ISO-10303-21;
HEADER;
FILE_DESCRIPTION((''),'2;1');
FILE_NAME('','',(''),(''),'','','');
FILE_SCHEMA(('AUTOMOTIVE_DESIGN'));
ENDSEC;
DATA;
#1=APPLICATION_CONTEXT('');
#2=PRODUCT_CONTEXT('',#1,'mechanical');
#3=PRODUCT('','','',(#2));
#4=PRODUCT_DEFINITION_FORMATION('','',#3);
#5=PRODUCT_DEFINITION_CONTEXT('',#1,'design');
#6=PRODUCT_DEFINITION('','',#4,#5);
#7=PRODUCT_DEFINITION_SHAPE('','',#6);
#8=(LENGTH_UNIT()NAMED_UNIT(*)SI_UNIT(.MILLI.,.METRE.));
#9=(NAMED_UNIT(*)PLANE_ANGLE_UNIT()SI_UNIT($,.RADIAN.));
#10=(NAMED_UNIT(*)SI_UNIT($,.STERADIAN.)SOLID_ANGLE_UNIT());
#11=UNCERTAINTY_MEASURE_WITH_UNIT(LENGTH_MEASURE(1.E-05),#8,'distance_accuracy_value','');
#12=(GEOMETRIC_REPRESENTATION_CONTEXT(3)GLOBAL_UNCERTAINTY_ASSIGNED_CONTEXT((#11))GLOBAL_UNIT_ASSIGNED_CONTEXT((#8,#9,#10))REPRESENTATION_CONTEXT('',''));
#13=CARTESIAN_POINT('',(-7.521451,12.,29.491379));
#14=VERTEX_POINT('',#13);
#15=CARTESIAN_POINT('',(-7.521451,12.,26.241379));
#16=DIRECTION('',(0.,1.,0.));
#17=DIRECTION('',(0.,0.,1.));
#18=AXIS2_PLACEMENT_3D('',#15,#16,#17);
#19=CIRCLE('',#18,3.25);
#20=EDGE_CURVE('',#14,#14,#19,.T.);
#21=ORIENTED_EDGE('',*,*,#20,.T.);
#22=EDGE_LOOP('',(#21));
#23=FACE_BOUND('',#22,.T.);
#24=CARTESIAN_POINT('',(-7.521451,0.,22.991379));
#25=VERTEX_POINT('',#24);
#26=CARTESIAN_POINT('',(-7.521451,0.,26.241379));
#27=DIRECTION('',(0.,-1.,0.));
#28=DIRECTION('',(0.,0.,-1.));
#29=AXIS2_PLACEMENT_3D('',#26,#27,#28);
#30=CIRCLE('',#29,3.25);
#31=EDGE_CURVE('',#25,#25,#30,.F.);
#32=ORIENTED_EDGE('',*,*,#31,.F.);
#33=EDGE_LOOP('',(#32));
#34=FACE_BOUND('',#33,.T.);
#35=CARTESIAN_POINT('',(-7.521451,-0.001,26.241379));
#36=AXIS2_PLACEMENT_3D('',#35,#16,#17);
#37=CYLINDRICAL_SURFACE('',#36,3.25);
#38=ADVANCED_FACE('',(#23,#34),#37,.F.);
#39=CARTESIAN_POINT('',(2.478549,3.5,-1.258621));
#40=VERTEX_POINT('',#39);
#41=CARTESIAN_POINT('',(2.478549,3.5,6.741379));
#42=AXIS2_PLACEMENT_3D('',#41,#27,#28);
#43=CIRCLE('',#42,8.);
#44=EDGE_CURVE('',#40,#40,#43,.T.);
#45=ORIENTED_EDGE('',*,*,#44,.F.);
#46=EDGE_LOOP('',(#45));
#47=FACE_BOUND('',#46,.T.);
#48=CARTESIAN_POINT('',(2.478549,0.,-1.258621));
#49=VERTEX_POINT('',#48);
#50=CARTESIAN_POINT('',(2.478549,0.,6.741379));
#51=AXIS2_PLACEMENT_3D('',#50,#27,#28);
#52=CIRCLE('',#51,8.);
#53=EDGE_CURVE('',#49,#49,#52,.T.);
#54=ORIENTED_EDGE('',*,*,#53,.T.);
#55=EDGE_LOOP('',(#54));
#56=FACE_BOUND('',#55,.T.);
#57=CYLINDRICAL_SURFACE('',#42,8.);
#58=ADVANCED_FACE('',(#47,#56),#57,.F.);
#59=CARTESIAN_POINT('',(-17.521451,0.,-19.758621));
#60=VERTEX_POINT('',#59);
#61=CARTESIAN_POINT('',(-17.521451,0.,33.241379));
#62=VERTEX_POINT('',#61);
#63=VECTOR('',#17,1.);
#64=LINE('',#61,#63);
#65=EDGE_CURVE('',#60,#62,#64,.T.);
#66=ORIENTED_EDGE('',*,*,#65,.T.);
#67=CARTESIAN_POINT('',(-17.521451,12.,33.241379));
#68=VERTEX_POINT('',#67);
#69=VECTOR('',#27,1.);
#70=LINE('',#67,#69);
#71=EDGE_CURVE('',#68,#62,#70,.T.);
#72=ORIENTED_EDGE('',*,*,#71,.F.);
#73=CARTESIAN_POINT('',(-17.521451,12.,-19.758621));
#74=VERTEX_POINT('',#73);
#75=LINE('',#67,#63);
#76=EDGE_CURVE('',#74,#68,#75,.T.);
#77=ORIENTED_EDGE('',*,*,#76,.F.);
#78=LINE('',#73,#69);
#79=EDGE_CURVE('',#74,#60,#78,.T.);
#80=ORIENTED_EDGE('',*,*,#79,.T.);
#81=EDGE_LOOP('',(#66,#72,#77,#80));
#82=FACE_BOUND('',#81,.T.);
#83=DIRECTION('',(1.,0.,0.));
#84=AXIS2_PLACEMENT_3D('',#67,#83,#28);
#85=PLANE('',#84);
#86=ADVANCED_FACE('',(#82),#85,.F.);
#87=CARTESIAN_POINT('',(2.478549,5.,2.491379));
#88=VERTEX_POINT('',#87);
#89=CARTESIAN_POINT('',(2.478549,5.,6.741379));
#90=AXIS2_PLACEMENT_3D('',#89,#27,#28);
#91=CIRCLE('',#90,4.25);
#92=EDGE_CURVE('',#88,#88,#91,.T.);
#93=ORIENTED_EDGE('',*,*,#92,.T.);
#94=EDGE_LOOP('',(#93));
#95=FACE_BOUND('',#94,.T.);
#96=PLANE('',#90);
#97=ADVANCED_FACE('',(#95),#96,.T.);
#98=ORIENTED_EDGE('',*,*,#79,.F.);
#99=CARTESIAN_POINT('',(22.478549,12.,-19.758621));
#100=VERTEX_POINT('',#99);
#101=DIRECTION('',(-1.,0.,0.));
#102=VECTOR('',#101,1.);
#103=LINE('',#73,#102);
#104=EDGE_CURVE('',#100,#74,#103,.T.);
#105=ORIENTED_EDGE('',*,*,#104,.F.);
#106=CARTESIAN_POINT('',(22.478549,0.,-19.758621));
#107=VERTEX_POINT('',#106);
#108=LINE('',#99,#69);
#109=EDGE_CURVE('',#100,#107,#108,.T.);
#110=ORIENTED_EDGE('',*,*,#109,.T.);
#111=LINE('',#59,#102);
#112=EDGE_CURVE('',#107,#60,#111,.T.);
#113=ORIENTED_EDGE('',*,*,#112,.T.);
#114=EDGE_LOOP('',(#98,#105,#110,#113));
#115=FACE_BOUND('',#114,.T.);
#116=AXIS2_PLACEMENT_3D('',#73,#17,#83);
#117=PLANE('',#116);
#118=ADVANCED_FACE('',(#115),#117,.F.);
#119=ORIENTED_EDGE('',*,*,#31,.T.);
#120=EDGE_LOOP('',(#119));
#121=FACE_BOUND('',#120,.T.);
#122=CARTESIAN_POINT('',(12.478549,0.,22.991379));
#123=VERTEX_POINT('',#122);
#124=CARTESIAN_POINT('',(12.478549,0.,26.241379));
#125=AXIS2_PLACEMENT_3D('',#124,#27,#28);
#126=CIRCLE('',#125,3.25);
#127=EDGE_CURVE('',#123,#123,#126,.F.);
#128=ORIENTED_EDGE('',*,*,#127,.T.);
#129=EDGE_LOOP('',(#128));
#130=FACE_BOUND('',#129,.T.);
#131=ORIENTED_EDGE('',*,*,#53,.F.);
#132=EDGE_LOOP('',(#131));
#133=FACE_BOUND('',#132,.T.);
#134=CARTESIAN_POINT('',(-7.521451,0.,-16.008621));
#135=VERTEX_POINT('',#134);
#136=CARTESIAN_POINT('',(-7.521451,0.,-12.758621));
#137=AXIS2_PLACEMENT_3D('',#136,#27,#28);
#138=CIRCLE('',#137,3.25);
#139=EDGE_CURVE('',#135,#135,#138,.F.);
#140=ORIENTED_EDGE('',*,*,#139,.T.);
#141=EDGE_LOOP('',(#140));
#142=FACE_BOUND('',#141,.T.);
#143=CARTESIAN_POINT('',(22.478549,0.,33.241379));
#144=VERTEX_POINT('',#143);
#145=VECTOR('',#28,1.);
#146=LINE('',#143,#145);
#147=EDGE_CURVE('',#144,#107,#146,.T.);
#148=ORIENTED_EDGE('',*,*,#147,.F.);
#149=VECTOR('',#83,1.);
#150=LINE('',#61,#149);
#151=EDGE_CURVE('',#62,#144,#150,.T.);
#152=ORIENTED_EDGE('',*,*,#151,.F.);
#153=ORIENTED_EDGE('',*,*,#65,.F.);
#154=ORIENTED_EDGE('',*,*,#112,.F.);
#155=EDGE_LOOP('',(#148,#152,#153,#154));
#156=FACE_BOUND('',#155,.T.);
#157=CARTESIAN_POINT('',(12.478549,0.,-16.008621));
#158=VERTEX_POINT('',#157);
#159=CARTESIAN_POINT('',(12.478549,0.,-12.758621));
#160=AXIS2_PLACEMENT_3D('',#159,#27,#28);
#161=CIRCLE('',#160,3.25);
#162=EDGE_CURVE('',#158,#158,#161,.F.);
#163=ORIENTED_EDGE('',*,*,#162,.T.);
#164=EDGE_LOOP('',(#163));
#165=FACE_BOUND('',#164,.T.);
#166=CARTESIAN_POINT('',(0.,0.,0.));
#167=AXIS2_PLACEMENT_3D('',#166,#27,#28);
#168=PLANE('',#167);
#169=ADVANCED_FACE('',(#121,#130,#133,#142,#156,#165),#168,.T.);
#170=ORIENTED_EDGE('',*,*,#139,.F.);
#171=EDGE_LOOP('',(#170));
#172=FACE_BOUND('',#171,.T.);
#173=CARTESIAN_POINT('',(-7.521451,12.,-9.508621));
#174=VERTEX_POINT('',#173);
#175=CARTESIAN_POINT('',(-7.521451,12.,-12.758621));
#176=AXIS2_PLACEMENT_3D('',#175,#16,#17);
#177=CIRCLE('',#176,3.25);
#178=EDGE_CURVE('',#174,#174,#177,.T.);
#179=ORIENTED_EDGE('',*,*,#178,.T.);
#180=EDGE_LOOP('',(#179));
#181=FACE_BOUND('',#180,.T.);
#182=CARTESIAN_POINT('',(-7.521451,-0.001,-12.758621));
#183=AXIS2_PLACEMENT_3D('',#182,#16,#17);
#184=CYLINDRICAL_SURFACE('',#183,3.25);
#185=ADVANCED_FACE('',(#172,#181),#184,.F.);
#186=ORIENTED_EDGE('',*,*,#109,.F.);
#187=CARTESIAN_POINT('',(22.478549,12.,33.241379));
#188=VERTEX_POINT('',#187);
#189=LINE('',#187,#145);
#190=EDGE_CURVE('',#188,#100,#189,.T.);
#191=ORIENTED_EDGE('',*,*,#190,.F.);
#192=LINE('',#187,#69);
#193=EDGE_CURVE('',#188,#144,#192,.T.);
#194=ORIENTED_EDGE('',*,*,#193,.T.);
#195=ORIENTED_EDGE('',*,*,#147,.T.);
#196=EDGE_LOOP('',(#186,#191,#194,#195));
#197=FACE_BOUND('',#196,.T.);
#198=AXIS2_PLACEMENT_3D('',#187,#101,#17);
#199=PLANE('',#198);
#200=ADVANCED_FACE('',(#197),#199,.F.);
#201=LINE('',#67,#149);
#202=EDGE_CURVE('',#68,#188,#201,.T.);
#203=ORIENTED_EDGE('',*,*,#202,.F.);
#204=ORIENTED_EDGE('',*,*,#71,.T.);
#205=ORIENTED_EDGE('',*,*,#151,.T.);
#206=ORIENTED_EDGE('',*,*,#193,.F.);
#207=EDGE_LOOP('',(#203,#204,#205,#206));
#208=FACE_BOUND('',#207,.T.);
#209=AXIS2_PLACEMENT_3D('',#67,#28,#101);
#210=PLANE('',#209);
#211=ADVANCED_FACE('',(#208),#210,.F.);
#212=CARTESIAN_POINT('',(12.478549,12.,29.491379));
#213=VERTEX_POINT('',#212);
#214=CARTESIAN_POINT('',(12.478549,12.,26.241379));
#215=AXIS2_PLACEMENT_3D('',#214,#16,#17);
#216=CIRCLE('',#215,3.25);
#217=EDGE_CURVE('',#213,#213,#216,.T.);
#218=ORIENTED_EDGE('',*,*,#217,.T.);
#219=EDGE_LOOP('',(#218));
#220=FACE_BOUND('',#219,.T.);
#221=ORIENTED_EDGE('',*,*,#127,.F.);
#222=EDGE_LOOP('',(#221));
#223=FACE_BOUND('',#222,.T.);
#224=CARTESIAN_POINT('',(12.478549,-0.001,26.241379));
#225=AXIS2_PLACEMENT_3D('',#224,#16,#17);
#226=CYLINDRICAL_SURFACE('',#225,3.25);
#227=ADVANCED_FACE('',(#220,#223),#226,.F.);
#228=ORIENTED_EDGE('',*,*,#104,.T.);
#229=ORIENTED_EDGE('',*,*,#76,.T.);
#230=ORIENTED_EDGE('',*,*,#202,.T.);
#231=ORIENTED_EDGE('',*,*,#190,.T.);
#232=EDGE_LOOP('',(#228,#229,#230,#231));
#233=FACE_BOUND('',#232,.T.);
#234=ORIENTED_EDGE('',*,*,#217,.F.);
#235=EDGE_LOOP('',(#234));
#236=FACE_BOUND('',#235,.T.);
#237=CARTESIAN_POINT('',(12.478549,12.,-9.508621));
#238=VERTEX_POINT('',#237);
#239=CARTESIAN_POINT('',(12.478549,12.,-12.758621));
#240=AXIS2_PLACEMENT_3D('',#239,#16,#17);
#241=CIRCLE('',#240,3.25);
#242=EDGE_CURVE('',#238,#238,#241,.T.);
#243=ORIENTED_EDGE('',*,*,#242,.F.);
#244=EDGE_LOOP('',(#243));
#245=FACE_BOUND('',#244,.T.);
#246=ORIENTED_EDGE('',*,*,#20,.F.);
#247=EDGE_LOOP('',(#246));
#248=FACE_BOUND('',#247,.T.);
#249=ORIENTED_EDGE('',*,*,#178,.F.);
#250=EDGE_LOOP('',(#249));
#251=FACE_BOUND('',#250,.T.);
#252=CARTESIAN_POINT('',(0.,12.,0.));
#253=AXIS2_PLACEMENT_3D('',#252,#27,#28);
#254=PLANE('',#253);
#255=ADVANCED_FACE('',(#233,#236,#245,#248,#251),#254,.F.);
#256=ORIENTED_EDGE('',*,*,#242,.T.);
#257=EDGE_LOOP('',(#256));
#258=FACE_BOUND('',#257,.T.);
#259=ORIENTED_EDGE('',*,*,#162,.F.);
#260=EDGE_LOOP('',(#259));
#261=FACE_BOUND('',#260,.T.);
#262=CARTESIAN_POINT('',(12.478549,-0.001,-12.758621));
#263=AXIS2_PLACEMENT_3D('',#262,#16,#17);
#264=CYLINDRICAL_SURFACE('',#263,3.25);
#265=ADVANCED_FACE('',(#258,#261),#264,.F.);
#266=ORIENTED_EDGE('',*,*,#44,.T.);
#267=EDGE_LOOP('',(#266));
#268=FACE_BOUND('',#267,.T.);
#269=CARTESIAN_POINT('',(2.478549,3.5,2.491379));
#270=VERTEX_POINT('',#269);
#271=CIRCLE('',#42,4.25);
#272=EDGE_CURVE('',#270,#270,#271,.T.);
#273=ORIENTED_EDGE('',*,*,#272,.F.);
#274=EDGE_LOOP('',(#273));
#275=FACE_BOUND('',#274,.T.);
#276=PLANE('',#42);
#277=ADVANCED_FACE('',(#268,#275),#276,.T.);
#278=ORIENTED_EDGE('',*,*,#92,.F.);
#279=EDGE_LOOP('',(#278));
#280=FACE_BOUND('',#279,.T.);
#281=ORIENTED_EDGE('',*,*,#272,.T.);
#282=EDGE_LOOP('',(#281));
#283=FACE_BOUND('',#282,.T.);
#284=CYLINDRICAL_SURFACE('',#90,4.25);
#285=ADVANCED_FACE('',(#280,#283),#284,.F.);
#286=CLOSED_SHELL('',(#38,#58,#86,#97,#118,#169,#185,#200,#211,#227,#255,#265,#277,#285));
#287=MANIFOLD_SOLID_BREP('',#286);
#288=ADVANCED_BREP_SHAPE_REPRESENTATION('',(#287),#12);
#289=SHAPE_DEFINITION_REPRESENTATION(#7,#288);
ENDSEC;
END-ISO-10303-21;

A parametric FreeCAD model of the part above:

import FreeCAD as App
import Part
import Sketcher
Q = App.Units.Quantity

doc = App.newDocument("Part")
body = doc.addObject("PartDesign::Body", "Body")

# Sketch on XZ plane
sketch1 = body.newObject("Sketcher::SketchObject", "Sketch")
sketch1.AttachmentSupport = (doc.getObject("XZ_Plane"), [""])
sketch1.MapMode = "FlatFace"
sketch1.addGeometry([
    Part.LineSegment(App.Vector(-17.521451, -19.758621, 0), App.Vector(-17.521451, 33.241379, 0)),
    Part.LineSegment(App.Vector(-17.521451, 33.241379, 0), App.Vector(22.478549, 33.241379, 0)),
    Part.LineSegment(App.Vector(22.478549, 33.241379, 0), App.Vector(22.478549, -19.758621, 0)),
    Part.LineSegment(App.Vector(22.478549, -19.758621, 0), App.Vector(-17.521451, -19.758621, 0)),
], False)
sketch1.addConstraint([
    Sketcher.Constraint("Coincident", 0, 2, 1, 1),
    Sketcher.Constraint("Coincident", 1, 2, 2, 1),
    Sketcher.Constraint("Coincident", 2, 2, 3, 1),
    Sketcher.Constraint("Coincident", 3, 2, 0, 1),
    Sketcher.Constraint("Vertical", 0),
    Sketcher.Constraint("Horizontal", 1),
    Sketcher.Constraint("Vertical", 2),
    Sketcher.Constraint("Horizontal", 3),
    Sketcher.Constraint("DistanceX", 1, 1, 1, 2, Q("40 mm")),
    Sketcher.Constraint("DistanceY", 0, 1, 0, 2, Q("53 mm")),
    Sketcher.Constraint("DistanceX", 0, 2, -1, 1, Q("17.521451 mm")),
    Sketcher.Constraint("DistanceY", -1, 1, 0, 2, Q("33.241379 mm")),
])
pad1 = body.newObject("PartDesign::Pad", "Pad")
pad1.Profile = sketch1
pad1.Length = 12
pad1.Reversed = True

# Sketch on XZ plane
sketch2 = body.newObject("Sketcher::SketchObject", "Sketch001")
sketch2.AttachmentSupport = (doc.getObject("XZ_Plane"), [""])
sketch2.MapMode = "FlatFace"
sketch2.addGeometry(Part.Circle(App.Vector(2.478549, 6.741379, 0), App.Vector(0, 0, 1), 8), False)
sketch2.addConstraint([
    Sketcher.Constraint("Diameter", 0, Q("16 mm")),
    Sketcher.Constraint("DistanceX", -1, 1, 0, 3, Q("2.478549 mm")),
    Sketcher.Constraint("DistanceY", -1, 1, 0, 3, Q("6.741379 mm")),
])
pocket1 = body.newObject("PartDesign::Pocket", "Pocket")
pocket1.Profile = sketch2
pocket1.Length = 3.5

# Sketch on XZ plane
sketch3 = body.newObject("Sketcher::SketchObject", "Sketch002")
sketch3.AttachmentSupport = (doc.getObject("XZ_Plane"), [""])
sketch3.MapMode = "FlatFace"
sketch3.AttachmentOffset = App.Placement(App.Vector(0, 0, -3.5), App.Rotation())
sketch3.addGeometry(Part.Circle(App.Vector(2.478549, 6.741379, 0), App.Vector(0, 0, 1), 4.25), False)
sketch3.addConstraint([
    Sketcher.Constraint("Diameter", 0, Q("8.5 mm")),
    Sketcher.Constraint("DistanceX", -1, 1, 0, 3, Q("2.478549 mm")),
    Sketcher.Constraint("DistanceY", -1, 1, 0, 3, Q("6.741379 mm")),
])
pocket2 = body.newObject("PartDesign::Pocket", "Pocket001")
pocket2.Profile = sketch3
pocket2.Length = 1.5

# Sketch on XZ plane
sketch4 = body.newObject("Sketcher::SketchObject", "Sketch003")
sketch4.AttachmentSupport = (doc.getObject("XZ_Plane"), [""])
sketch4.MapMode = "FlatFace"
sketch4.AttachmentOffset = App.Placement(App.Vector(0, 0, -12), App.Rotation())
sketch4.addGeometry(Part.Circle(App.Vector(-7.521451, 26.241379, 0), App.Vector(0, 0, 1), 3.25), False)
sketch4.addConstraint([
    Sketcher.Constraint("Diameter", 0, Q("6.5 mm")),
    Sketcher.Constraint("DistanceX", 0, 3, -1, 1, Q("7.521451 mm")),
    Sketcher.Constraint("DistanceY", -1, 1, 0, 3, Q("26.241379 mm")),
])
pocket3 = body.newObject("PartDesign::Pocket", "Pocket002")
pocket3.Profile = sketch4
pocket3.Type = "UpToFirst"
pocket3.Reversed = True

# Sketch on XZ plane
sketch5 = body.newObject("Sketcher::SketchObject", "Sketch004")
sketch5.AttachmentSupport = (doc.getObject("XZ_Plane"), [""])
sketch5.MapMode = "FlatFace"
sketch5.AttachmentOffset = App.Placement(App.Vector(0, 0, -12), App.Rotation())
sketch5.addGeometry(Part.Circle(App.Vector(12.478549, 26.241379, 0), App.Vector(0, 0, 1), 3.25), False)
sketch5.addConstraint([
    Sketcher.Constraint("Diameter", 0, Q("6.5 mm")),
    Sketcher.Constraint("DistanceX", -1, 1, 0, 3, Q("12.478549 mm")),
    Sketcher.Constraint("DistanceY", -1, 1, 0, 3, Q("26.241379 mm")),
])
pocket4 = body.newObject("PartDesign::Pocket", "Pocket003")
pocket4.Profile = sketch5
pocket4.Type = "UpToFirst"
pocket4.Reversed = True

# Sketch on XZ plane
sketch6 = body.newObject("Sketcher::SketchObject", "Sketch005")
sketch6.AttachmentSupport = (doc.getObject("XZ_Plane"), [""])
sketch6.MapMode = "FlatFace"
sketch6.AttachmentOffset = App.Placement(App.Vector(0, 0, -12), App.Rotation())
sketch6.addGeometry(Part.Circle(App.Vector(-7.521451, -12.758621, 0), App.Vector(0, 0, 1), 3.25), False)
sketch6.addConstraint([
    Sketcher.Constraint("Diameter", 0, Q("6.5 mm")),
    Sketcher.Constraint("DistanceX", 0, 3, -1, 1, Q("7.521451 mm")),
    Sketcher.Constraint("DistanceY", 0, 3, -1, 1, Q("12.758621 mm")),
])
pocket5 = body.newObject("PartDesign::Pocket", "Pocket004")
pocket5.Profile = sketch6
pocket5.Type = "UpToFirst"
pocket5.Reversed = True

# Sketch on XZ plane
sketch7 = body.newObject("Sketcher::SketchObject", "Sketch006")
sketch7.AttachmentSupport = (doc.getObject("XZ_Plane"), [""])
sketch7.MapMode = "FlatFace"
sketch7.AttachmentOffset = App.Placement(App.Vector(0, 0, -12), App.Rotation())
sketch7.addGeometry(Part.Circle(App.Vector(12.478549, -12.758621, 0), App.Vector(0, 0, 1), 3.25), False)
sketch7.addConstraint([
    Sketcher.Constraint("Diameter", 0, Q("6.5 mm")),
    Sketcher.Constraint("DistanceX", -1, 1, 0, 3, Q("12.478549 mm")),
    Sketcher.Constraint("DistanceY", 0, 3, -1, 1, Q("12.758621 mm")),
])
pocket6 = body.newObject("PartDesign::Pocket", "Pocket005")
pocket6.Profile = sketch7
pocket6.Type = "UpToFirst"
pocket6.Reversed = True

doc.recompute()
